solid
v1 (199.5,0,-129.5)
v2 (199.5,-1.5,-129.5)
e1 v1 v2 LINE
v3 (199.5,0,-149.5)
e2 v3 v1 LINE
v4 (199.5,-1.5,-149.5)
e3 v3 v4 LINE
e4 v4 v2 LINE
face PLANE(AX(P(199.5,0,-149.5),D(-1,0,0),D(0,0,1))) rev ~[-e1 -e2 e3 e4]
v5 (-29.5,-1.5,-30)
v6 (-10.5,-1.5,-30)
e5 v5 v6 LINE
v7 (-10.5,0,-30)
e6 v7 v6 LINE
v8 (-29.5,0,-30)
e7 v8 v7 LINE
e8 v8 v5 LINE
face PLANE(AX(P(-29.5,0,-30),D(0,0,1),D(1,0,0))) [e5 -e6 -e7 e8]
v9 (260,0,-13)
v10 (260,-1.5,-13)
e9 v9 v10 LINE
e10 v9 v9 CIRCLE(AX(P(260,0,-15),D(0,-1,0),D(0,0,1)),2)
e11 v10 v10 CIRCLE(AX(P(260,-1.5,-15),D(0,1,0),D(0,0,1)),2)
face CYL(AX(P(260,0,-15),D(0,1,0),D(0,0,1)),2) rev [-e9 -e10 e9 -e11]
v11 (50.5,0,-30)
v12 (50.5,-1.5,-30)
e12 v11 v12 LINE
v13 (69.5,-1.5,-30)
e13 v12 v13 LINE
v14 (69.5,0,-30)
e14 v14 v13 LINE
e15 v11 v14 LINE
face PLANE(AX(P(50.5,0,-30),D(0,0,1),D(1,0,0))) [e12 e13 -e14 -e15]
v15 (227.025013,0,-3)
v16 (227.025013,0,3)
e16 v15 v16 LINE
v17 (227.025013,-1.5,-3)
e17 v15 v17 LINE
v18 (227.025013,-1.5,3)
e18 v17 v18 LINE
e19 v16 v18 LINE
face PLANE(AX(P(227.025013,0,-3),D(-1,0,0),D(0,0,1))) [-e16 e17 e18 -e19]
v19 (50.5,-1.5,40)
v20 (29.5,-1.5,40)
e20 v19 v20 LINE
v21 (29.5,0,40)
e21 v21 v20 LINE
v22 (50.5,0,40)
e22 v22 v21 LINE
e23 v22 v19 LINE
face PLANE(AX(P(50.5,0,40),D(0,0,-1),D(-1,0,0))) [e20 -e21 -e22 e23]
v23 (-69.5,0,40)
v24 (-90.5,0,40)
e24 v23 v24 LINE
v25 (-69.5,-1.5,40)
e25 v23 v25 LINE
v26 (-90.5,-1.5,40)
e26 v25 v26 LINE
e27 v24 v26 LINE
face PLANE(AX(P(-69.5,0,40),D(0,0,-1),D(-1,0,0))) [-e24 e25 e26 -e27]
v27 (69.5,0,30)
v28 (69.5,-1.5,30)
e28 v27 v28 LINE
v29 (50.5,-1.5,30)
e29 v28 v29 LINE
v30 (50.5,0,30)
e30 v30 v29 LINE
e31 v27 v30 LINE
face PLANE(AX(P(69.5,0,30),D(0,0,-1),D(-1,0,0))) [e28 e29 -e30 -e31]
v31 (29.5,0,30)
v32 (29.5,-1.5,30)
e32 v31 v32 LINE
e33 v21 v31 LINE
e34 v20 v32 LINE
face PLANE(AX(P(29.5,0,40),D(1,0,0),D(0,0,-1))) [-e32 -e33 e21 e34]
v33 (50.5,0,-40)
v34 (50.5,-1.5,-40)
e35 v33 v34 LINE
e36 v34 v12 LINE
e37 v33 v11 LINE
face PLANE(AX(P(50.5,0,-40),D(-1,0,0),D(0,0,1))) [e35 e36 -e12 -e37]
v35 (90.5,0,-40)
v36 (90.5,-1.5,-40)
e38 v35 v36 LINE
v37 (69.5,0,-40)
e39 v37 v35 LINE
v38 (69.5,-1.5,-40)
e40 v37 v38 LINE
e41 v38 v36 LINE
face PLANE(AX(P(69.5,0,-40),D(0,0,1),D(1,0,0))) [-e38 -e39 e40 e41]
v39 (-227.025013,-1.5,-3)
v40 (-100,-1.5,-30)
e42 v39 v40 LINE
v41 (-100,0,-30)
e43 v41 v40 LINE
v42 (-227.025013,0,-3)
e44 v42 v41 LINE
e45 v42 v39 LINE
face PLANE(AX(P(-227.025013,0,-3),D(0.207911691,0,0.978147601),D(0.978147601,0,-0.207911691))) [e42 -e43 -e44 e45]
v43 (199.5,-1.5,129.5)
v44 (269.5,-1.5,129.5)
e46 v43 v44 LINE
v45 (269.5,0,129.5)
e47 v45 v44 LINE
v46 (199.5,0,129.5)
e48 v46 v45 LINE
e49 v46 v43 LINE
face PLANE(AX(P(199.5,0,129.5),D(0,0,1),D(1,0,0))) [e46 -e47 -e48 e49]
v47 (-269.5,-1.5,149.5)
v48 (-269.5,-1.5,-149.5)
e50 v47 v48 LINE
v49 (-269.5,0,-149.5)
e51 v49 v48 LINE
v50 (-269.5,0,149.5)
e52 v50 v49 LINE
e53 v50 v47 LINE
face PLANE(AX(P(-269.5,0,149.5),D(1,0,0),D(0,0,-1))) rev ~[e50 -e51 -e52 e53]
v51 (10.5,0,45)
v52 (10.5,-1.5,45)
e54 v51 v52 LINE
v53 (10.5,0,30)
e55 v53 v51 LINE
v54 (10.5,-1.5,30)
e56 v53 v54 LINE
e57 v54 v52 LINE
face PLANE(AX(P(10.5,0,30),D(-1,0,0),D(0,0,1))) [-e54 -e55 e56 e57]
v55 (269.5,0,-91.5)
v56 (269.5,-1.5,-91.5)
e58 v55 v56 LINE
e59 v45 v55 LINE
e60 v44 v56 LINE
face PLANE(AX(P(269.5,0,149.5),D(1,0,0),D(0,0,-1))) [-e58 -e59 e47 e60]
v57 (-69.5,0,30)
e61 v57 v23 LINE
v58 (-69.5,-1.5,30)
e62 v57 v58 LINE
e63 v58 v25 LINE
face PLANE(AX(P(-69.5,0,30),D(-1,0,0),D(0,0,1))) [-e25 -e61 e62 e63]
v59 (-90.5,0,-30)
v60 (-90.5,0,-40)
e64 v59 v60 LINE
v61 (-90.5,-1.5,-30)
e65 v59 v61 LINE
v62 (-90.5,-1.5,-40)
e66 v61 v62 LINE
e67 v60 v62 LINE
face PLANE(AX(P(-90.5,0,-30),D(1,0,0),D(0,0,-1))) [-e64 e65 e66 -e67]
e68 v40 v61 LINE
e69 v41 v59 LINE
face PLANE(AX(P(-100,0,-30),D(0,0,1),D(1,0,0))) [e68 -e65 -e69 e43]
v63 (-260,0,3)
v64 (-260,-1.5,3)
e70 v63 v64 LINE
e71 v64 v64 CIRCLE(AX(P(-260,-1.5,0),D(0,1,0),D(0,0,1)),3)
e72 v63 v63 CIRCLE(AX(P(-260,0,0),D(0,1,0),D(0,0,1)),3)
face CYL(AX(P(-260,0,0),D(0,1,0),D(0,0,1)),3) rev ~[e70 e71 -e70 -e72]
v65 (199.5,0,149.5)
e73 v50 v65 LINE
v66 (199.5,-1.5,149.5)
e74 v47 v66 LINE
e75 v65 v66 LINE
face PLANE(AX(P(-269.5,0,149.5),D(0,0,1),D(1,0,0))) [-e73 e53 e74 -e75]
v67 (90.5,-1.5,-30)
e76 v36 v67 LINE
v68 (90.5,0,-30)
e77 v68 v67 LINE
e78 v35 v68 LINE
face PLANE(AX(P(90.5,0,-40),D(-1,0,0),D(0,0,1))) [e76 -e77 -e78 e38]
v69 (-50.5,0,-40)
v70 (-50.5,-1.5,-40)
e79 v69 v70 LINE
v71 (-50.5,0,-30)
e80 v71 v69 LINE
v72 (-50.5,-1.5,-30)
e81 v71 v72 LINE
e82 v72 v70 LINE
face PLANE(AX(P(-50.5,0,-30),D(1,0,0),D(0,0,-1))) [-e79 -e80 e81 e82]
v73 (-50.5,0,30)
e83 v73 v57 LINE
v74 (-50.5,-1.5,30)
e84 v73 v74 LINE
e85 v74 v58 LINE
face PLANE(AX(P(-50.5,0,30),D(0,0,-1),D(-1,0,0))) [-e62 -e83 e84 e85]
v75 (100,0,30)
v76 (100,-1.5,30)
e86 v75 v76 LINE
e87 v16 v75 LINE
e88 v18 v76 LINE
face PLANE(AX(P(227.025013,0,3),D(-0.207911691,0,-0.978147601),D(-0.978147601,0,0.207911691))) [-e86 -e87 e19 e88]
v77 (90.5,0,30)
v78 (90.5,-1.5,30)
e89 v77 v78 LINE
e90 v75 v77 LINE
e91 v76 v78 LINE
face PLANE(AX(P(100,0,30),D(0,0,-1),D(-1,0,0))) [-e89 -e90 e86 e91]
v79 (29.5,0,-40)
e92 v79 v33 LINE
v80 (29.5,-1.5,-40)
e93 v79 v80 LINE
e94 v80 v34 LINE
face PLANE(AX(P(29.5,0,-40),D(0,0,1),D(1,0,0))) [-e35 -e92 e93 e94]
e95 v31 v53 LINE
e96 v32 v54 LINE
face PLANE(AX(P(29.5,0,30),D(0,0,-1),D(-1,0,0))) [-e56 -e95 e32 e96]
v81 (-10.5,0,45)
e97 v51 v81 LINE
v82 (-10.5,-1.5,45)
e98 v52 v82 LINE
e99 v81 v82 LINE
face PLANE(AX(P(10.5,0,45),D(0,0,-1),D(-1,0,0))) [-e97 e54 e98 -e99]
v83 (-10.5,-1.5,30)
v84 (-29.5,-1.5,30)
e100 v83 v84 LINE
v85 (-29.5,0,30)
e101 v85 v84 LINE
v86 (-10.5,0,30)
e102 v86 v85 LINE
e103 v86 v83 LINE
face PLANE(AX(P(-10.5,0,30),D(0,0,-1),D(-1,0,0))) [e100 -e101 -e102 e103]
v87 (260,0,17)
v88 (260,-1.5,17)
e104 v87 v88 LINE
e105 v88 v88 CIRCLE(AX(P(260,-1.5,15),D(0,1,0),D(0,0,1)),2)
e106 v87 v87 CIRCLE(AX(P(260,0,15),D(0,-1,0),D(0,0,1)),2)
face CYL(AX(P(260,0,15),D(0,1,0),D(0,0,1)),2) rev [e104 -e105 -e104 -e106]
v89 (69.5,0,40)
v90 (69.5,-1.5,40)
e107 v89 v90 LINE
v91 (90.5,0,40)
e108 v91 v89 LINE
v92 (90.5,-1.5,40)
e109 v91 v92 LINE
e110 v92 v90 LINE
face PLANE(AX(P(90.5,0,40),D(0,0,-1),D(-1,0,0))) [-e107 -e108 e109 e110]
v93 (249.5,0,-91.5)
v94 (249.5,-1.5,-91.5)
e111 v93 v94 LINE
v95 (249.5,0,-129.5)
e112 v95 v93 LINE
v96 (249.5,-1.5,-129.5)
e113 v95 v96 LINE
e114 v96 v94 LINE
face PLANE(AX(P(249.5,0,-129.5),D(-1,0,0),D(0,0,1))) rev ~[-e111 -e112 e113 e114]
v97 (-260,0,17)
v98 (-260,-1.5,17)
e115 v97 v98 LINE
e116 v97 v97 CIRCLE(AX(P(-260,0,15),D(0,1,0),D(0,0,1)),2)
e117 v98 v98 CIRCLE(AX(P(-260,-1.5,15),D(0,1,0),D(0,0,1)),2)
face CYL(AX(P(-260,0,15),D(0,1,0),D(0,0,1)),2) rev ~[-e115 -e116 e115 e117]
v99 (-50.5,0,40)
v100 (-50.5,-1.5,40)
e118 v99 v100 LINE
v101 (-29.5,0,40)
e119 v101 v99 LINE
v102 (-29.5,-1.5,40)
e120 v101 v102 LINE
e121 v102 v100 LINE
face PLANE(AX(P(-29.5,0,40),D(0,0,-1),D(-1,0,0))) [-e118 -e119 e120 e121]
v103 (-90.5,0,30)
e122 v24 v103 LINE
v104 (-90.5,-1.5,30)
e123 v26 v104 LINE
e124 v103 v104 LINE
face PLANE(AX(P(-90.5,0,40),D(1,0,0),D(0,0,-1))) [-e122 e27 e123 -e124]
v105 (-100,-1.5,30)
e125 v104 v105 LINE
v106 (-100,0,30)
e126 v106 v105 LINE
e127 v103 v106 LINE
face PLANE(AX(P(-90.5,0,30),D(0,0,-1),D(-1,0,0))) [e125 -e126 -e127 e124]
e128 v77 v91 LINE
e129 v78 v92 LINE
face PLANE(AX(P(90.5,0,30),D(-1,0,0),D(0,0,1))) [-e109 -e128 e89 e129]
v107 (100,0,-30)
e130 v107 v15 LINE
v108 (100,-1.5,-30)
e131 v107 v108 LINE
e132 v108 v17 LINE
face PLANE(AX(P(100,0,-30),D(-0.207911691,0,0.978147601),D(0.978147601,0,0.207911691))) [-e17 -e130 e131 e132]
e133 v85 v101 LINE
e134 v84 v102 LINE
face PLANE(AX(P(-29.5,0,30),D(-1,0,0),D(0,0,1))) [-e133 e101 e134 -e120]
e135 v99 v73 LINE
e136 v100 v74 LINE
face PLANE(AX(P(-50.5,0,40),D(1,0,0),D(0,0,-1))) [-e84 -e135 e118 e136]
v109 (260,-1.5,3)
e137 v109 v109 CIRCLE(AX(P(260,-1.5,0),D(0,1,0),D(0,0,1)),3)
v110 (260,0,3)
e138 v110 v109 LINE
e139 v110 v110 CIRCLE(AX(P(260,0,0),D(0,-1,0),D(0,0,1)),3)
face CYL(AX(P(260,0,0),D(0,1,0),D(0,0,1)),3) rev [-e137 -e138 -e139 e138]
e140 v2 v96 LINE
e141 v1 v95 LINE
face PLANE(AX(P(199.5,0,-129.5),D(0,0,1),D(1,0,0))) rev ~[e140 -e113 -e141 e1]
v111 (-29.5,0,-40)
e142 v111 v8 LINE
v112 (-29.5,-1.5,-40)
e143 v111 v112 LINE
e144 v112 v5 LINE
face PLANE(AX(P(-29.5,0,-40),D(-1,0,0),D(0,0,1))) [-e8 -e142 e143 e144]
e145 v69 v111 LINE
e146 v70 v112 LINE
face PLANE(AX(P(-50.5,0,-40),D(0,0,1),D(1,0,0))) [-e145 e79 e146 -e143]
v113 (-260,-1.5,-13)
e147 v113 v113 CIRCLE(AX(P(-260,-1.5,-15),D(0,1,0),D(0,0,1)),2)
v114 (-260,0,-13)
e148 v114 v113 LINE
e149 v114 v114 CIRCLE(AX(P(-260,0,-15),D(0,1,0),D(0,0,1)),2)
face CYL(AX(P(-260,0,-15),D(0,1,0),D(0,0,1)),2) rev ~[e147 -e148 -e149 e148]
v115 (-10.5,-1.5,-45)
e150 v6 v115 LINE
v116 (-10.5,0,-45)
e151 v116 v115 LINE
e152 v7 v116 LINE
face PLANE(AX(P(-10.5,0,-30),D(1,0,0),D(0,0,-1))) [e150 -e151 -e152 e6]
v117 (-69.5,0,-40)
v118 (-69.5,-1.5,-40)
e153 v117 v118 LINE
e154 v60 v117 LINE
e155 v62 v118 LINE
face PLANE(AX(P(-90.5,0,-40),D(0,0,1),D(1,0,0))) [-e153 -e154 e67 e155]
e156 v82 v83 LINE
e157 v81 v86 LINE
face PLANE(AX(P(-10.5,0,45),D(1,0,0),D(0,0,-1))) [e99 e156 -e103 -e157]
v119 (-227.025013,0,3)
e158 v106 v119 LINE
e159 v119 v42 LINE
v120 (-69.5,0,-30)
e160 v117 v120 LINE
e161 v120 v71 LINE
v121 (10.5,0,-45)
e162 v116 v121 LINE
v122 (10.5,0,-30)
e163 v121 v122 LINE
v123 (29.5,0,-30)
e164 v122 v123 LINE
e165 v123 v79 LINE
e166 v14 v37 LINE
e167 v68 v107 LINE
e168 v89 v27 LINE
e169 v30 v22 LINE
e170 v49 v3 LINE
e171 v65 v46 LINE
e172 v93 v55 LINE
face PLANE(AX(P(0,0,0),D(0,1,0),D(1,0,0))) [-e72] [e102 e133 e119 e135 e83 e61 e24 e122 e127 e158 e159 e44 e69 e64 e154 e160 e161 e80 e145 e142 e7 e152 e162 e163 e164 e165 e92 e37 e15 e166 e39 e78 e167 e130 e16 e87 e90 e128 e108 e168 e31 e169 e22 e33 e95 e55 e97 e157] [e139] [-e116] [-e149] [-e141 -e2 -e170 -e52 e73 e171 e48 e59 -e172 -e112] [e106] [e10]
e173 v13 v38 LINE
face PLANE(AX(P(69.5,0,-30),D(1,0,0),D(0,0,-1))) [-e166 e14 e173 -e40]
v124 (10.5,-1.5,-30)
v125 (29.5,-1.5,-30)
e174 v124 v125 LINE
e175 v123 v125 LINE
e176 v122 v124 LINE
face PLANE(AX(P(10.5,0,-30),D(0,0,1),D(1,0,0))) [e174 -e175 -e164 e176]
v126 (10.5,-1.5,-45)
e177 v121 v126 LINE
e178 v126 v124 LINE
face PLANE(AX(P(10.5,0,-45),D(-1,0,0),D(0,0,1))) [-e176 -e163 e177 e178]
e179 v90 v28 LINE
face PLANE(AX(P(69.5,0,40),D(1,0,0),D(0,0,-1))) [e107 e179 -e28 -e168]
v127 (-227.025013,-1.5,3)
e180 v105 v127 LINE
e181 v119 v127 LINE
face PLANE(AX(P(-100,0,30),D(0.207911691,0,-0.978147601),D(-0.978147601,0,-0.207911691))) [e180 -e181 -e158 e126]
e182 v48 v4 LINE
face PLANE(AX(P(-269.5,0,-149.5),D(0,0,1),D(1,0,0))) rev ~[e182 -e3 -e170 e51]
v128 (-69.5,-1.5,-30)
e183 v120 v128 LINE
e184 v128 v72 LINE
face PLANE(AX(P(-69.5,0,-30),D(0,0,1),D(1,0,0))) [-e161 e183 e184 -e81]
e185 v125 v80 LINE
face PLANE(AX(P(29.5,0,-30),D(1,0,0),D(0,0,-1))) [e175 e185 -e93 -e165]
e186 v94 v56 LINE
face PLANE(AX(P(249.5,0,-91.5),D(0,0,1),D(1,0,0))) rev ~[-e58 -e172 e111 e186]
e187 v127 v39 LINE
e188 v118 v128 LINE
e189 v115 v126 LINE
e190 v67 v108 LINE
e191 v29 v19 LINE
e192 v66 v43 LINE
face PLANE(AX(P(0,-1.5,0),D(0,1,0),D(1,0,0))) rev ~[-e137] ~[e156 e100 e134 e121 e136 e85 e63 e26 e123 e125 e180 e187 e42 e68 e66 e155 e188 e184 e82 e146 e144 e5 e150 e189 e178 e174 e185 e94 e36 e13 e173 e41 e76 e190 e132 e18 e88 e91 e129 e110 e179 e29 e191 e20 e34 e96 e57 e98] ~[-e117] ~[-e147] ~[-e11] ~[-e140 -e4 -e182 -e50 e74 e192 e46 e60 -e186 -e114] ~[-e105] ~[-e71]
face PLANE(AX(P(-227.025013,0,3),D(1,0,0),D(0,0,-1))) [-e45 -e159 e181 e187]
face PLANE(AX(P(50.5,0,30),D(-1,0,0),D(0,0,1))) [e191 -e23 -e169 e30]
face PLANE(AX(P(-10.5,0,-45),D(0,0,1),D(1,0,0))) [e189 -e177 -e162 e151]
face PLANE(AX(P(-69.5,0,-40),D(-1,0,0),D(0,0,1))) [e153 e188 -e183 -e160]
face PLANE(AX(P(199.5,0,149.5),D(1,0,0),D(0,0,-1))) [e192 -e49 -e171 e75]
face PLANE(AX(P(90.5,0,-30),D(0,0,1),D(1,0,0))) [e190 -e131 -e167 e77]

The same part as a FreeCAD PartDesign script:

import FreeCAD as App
import Part
import Sketcher

V = App.Vector
Q = App.Units.Quantity


def add_polygon(sketch, points):
    """Adds a closed chain of lines whose ends are joined by coincident constraints."""
    first, n = sketch.GeometryCount, len(points)
    for a, b in zip(points, points[1:] + points[:1]):
        sketch.addGeometry(Part.LineSegment(App.Vector(*a, 0), App.Vector(*b, 0)), False)
    for i in range(n):
        sketch.addConstraint(Sketcher.Constraint("Coincident", first + i, 2, first + (i + 1) % n, 1))

doc = App.newDocument("Part")
body = doc.addObject("PartDesign::Body", "Body")

# Sketch on XZ plane
sketch1 = body.newObject("Sketcher::SketchObject", "Sketch")
sketch1.AttachmentSupport = (doc.getObject("XZ_Plane"), [""])
sketch1.MapMode = "FlatFace"
add_polygon(sketch1, [(-270, -150), (-270, 150), (270, 150), (270, -150)])  # lines 0-3
sketch1.addConstraint(Sketcher.Constraint("Vertical", 0))
sketch1.addConstraint(Sketcher.Constraint("Horizontal", 1))
sketch1.addConstraint(Sketcher.Constraint("Vertical", 2))
sketch1.addConstraint(Sketcher.Constraint("Horizontal", 3))
sketch1.addConstraint(Sketcher.Constraint("Symmetric", 0, 2, 2, 2, -1, 1))
sketch1.addConstraint(Sketcher.Constraint("DistanceX", 1, 1, 1, 2, Q("539 mm")))
sketch1.addConstraint(Sketcher.Constraint("DistanceY", 0, 1, 0, 2, Q("299 mm")))
pad1 = body.newObject("PartDesign::Pad", "Pad")
pad1.Profile = sketch1
pad1.Length = 1.5

# Sketch on XZ plane
sketch2 = body.newObject("Sketcher::SketchObject", "Sketch001")
sketch2.AttachmentSupport = (doc.getObject("XZ_Plane"), [""])
sketch2.MapMode = "FlatFace"
add_polygon(sketch2, [(270, -150), (200, -150), (200, -130), (250, -130), (250, -92), (270, -92)])  # lines 0-5
add_polygon(sketch2, [(200, 130), (200, 150), (270, 150), (270, 130)])  # lines 6-9
sketch2.addConstraint(Sketcher.Constraint("Horizontal", 0))
sketch2.addConstraint(Sketcher.Constraint("Vertical", 1))
sketch2.addConstraint(Sketcher.Constraint("Horizontal", 2))
sketch2.addConstraint(Sketcher.Constraint("Vertical", 3))
sketch2.addConstraint(Sketcher.Constraint("Horizontal", 4))
sketch2.addConstraint(Sketcher.Constraint("Vertical", 5))
sketch2.addConstraint(Sketcher.Constraint("Vertical", 6))
sketch2.addConstraint(Sketcher.Constraint("Horizontal", 7))
sketch2.addConstraint(Sketcher.Constraint("Vertical", 8))
sketch2.addConstraint(Sketcher.Constraint("Horizontal", 9))
sketch2.addConstraint(Sketcher.Constraint("Symmetric", 0, 2, 6, 2, -1))
sketch2.addConstraint(Sketcher.Constraint("Vertical", 5, 2, 7, 2))
sketch2.addConstraint(Sketcher.Constraint("Equal", 4, 1))
sketch2.addConstraint(Sketcher.Constraint("Equal", 1, 6))
sketch2.addConstraint(Sketcher.Constraint("DistanceX", 0, 2, 0, 1, Q("70 mm")))
sketch2.addConstraint(Sketcher.Constraint("DistanceX", 2, 1, 2, 2, Q("50 mm")))
sketch2.addConstraint(Sketcher.Constraint("DistanceY", 3, 1, 3, 2, Q("38 mm")))
sketch2.addConstraint(Sketcher.Constraint("DistanceY", 3, 2, 6, 2, Q("241 mm")))
sketch2.addConstraint(Sketcher.Constraint("DistanceX", -1, 1, 0, 2, Q("199.5 mm")))
pocket1 = body.newObject("PartDesign::Pocket", "Pocket")
pocket1.Profile = sketch2
pocket1.Type = "ThroughAll"
pocket1.Reversed = True

# Sketch on XZ plane
sketch3 = body.newObject("Sketcher::SketchObject", "Sketch002")
sketch3.AttachmentSupport = (doc.getObject("XZ_Plane"), [""])
sketch3.MapMode = "FlatFace"
sketch3.addGeometry(Part.Circle(V(-260, 0, 0), V(0, 0, 1), 3), False)
sketch3.addGeometry(Part.Circle(V(-260, -15, 0), V(0, 0, 1), 2), False)
sketch3.addGeometry(Part.Circle(V(-260, 15, 0), V(0, 0, 1), 2), False)
sketch3.addConstraint(Sketcher.Constraint("Equal", 1, 2))
sketch3.addConstraint(Sketcher.Constraint("Symmetric", 1, 3, 2, 3, -1))
sketch3.addConstraint(Sketcher.Constraint("PointOnObject", 0, 3, -1))
sketch3.addConstraint(Sketcher.Constraint("Vertical", 0, 3, 1, 3))
sketch3.addConstraint(Sketcher.Constraint("Diameter", 0, Q("6 mm")))
sketch3.addConstraint(Sketcher.Constraint("Diameter", 1, Q("4 mm")))
sketch3.addConstraint(Sketcher.Constraint("DistanceX", 0, 3, -1, 1, Q("260 mm")))
sketch3.addConstraint(Sketcher.Constraint("DistanceY", 1, 3, -1, 1, Q("15 mm")))
pocket2 = body.newObject("PartDesign::Pocket", "Pocket001")
pocket2.Profile = sketch3
pocket2.Length = 10
pocket2.Reversed = True
doc.recompute()

mirrored = body.newObject("PartDesign::Mirrored", "Mirrored")
mirrored.Originals = [pocket2]
mirrored.MirrorPlane = (doc.getObject("YZ_Plane"), [""])
body.Tip = mirrored

# Sketch on XZ plane
sketch4 = body.newObject("Sketcher::SketchObject", "Sketch003")
sketch4.AttachmentSupport = (doc.getObject("XZ_Plane"), [""])
sketch4.MapMode = "FlatFace"
add_polygon(sketch4, [(227, 3), (227, -3), (100, -30), (90, -30), (90, -40), (70, -40), (70, -30), (50, -30), (50, -40), (30, -40), (30, -30), (10, -30), (10, -45), (-10, -45), (-10, -30), (-30, -30), (-30, -40), (-50, -40), (-50, -30), (-70, -30), (-70, -40), (-90, -40), (-90, -30), (-100, -30), (-227, -3), (-227, 3), (-100, 30), (-90, 30), (-90, 40), (-70, 40), (-70, 30), (-50, 30), (-50, 40), (-30, 40), (-30, 30), (-10, 30), (-10, 45), (10, 45), (10, 30), (30, 30), (30, 40), (50, 40), (50, 30), (70, 30), (70, 40), (90, 40), (90, 30), (100, 30)])  # lines 0-47
sketch4.addConstraint(Sketcher.Constraint("Vertical", 0))
sketch4.addConstraint(Sketcher.Constraint("Horizontal", 2))
sketch4.addConstraint(Sketcher.Constraint("Vertical", 3))
sketch4.addConstraint(Sketcher.Constraint("Horizontal", 4))
sketch4.addConstraint(Sketcher.Constraint("Vertical", 5))
sketch4.addConstraint(Sketcher.Constraint("Horizontal", 6))
sketch4.addConstraint(Sketcher.Constraint("Vertical", 7))
sketch4.addConstraint(Sketcher.Constraint("Horizontal", 8))
sketch4.addConstraint(Sketcher.Constraint("Vertical", 9))
sketch4.addConstraint(Sketcher.Constraint("Horizontal", 10))
sketch4.addConstraint(Sketcher.Constraint("Vertical", 11))
sketch4.addConstraint(Sketcher.Constraint("Horizontal", 12))
sketch4.addConstraint(Sketcher.Constraint("Vertical", 13))
sketch4.addConstraint(Sketcher.Constraint("Horizontal", 14))
sketch4.addConstraint(Sketcher.Constraint("Vertical", 15))
sketch4.addConstraint(Sketcher.Constraint("Horizontal", 16))
sketch4.addConstraint(Sketcher.Constraint("Vertical", 17))
sketch4.addConstraint(Sketcher.Constraint("Horizontal", 18))
sketch4.addConstraint(Sketcher.Constraint("Vertical", 19))
sketch4.addConstraint(Sketcher.Constraint("Horizontal", 20))
sketch4.addConstraint(Sketcher.Constraint("Vertical", 21))
sketch4.addConstraint(Sketcher.Constraint("Horizontal", 22))
sketch4.addConstraint(Sketcher.Constraint("Vertical", 24))
sketch4.addConstraint(Sketcher.Constraint("Horizontal", 26))
sketch4.addConstraint(Sketcher.Constraint("Vertical", 27))
sketch4.addConstraint(Sketcher.Constraint("Horizontal", 28))
sketch4.addConstraint(Sketcher.Constraint("Vertical", 29))
sketch4.addConstraint(Sketcher.Constraint("Horizontal", 30))
sketch4.addConstraint(Sketcher.Constraint("Vertical", 31))
sketch4.addConstraint(Sketcher.Constraint("Horizontal", 32))
sketch4.addConstraint(Sketcher.Constraint("Vertical", 33))
sketch4.addConstraint(Sketcher.Constraint("Horizontal", 34))
sketch4.addConstraint(Sketcher.Constraint("Vertical", 35))
sketch4.addConstraint(Sketcher.Constraint("Horizontal", 36))
sketch4.addConstraint(Sketcher.Constraint("Vertical", 37))
sketch4.addConstraint(Sketcher.Constraint("Horizontal", 38))
sketch4.addConstraint(Sketcher.Constraint("Vertical", 39))
sketch4.addConstraint(Sketcher.Constraint("Horizontal", 40))
sketch4.addConstraint(Sketcher.Constraint("Vertical", 41))
sketch4.addConstraint(Sketcher.Constraint("Horizontal", 42))
sketch4.addConstraint(Sketcher.Constraint("Vertical", 43))
sketch4.addConstraint(Sketcher.Constraint("Horizontal", 44))
sketch4.addConstraint(Sketcher.Constraint("Vertical", 45))
sketch4.addConstraint(Sketcher.Constraint("Horizontal", 46))
sketch4.addConstraint(Sketcher.Constraint("Symmetric", 0, 2, 24, 2, -1, 1))
sketch4.addConstraint(Sketcher.Constraint("Symmetric", 1, 2, 25, 2, -1, 1))
sketch4.addConstraint(Sketcher.Constraint("Symmetric", 3, 2, 27, 2, -1, 1))
sketch4.addConstraint(Sketcher.Constraint("Symmetric", 5, 2, 29, 2, -1, 1))
sketch4.addConstraint(Sketcher.Constraint("Symmetric", 7, 2, 31, 2, -1, 1))
sketch4.addConstraint(Sketcher.Constraint("Symmetric", 9, 2, 33, 2, -1, 1))
sketch4.addConstraint(Sketcher.Constraint("Symmetric", 11, 2, 35, 2, -1, 1))
sketch4.addConstraint(Sketcher.Constraint("Symmetric", 13, 2, 37, 2, -1, 1))
sketch4.addConstraint(Sketcher.Constraint("Symmetric", 15, 2, 39, 2, -1, 1))
sketch4.addConstraint(Sketcher.Constraint("Symmetric", 17, 2, 41, 2, -1, 1))
sketch4.addConstraint(Sketcher.Constraint("Symmetric", 19, 2, 43, 2, -1, 1))
sketch4.addConstraint(Sketcher.Constraint("Symmetric", 21, 2, 45, 2, -1, 1))
sketch4.addConstraint(Sketcher.Constraint("Symmetric", 10, 2, 13, 2, -2))
sketch4.addConstraint(Sketcher.Constraint("Symmetric", 8, 2, 15, 2, -2))
sketch4.addConstraint(Sketcher.Constraint("Symmetric", 6, 2, 17, 2, -2))
sketch4.addConstraint(Sketcher.Constraint("Symmetric", 4, 2, 19, 2, -2))
sketch4.addConstraint(Sketcher.Constraint("Symmetric", 2, 2, 21, 2, -2))
sketch4.addConstraint(Sketcher.Constraint("Parallel", 23, 47))
sketch4.addConstraint(Sketcher.Constraint("Horizontal", 2, 2, 5, 2))
sketch4.addConstraint(Sketcher.Constraint("Horizontal", 4, 2, 7, 2))
sketch4.addConstraint(Sketcher.Constraint("Horizontal", 6, 2, 9, 2))
sketch4.addConstraint(Sketcher.Constraint("Horizontal", 0, 2, 23, 2))
sketch4.addConstraint(Sketcher.Constraint("Horizontal", 24, 2, 47, 2))
sketch4.addConstraint(Sketcher.Constraint("Vertical", 22, 2, 25, 2))
sketch4.addConstraint(Sketcher.Constraint("Equal", 4, 8))
sketch4.addConstraint(Sketcher.Constraint("Equal", 6, 10))
sketch4.addConstraint(Sketcher.Constraint("Equal", 8, 12))
sketch4.addConstraint(Sketcher.Constraint("DistanceX", 4, 2, 4, 1, Q("21 mm")))
sketch4.addConstraint(Sketcher.Constraint("DistanceX", 6, 2, 6, 1, Q("19 mm")))
sketch4.addConstraint(Sketcher.Constraint("DistanceY", 0, 2, 0, 1, Q("6 mm")))
sketch4.addConstraint(Sketcher.Constraint("DistanceY", 3, 2, 3, 1, Q("10 mm")))
sketch4.addConstraint(Sketcher.Constraint("DistanceY", 11, 2, 11, 1, Q("15 mm")))
sketch4.addConstraint(Sketcher.Constraint("Angle", 1, Q("-168 deg")))
sketch4.addConstraint(Sketcher.Constraint("DistanceX", 2, 2, 2, 1, Q("9.5 mm")))
sketch4.addConstraint(Sketcher.Constraint("DistanceY", 1, 2, -1, 1, Q("30 mm")))
pocket3 = body.newObject("PartDesign::Pocket", "Pocket002")
pocket3.Profile = sketch4
pocket3.Type = "ThroughAll"
pocket3.Reversed = True

doc.recompute()
